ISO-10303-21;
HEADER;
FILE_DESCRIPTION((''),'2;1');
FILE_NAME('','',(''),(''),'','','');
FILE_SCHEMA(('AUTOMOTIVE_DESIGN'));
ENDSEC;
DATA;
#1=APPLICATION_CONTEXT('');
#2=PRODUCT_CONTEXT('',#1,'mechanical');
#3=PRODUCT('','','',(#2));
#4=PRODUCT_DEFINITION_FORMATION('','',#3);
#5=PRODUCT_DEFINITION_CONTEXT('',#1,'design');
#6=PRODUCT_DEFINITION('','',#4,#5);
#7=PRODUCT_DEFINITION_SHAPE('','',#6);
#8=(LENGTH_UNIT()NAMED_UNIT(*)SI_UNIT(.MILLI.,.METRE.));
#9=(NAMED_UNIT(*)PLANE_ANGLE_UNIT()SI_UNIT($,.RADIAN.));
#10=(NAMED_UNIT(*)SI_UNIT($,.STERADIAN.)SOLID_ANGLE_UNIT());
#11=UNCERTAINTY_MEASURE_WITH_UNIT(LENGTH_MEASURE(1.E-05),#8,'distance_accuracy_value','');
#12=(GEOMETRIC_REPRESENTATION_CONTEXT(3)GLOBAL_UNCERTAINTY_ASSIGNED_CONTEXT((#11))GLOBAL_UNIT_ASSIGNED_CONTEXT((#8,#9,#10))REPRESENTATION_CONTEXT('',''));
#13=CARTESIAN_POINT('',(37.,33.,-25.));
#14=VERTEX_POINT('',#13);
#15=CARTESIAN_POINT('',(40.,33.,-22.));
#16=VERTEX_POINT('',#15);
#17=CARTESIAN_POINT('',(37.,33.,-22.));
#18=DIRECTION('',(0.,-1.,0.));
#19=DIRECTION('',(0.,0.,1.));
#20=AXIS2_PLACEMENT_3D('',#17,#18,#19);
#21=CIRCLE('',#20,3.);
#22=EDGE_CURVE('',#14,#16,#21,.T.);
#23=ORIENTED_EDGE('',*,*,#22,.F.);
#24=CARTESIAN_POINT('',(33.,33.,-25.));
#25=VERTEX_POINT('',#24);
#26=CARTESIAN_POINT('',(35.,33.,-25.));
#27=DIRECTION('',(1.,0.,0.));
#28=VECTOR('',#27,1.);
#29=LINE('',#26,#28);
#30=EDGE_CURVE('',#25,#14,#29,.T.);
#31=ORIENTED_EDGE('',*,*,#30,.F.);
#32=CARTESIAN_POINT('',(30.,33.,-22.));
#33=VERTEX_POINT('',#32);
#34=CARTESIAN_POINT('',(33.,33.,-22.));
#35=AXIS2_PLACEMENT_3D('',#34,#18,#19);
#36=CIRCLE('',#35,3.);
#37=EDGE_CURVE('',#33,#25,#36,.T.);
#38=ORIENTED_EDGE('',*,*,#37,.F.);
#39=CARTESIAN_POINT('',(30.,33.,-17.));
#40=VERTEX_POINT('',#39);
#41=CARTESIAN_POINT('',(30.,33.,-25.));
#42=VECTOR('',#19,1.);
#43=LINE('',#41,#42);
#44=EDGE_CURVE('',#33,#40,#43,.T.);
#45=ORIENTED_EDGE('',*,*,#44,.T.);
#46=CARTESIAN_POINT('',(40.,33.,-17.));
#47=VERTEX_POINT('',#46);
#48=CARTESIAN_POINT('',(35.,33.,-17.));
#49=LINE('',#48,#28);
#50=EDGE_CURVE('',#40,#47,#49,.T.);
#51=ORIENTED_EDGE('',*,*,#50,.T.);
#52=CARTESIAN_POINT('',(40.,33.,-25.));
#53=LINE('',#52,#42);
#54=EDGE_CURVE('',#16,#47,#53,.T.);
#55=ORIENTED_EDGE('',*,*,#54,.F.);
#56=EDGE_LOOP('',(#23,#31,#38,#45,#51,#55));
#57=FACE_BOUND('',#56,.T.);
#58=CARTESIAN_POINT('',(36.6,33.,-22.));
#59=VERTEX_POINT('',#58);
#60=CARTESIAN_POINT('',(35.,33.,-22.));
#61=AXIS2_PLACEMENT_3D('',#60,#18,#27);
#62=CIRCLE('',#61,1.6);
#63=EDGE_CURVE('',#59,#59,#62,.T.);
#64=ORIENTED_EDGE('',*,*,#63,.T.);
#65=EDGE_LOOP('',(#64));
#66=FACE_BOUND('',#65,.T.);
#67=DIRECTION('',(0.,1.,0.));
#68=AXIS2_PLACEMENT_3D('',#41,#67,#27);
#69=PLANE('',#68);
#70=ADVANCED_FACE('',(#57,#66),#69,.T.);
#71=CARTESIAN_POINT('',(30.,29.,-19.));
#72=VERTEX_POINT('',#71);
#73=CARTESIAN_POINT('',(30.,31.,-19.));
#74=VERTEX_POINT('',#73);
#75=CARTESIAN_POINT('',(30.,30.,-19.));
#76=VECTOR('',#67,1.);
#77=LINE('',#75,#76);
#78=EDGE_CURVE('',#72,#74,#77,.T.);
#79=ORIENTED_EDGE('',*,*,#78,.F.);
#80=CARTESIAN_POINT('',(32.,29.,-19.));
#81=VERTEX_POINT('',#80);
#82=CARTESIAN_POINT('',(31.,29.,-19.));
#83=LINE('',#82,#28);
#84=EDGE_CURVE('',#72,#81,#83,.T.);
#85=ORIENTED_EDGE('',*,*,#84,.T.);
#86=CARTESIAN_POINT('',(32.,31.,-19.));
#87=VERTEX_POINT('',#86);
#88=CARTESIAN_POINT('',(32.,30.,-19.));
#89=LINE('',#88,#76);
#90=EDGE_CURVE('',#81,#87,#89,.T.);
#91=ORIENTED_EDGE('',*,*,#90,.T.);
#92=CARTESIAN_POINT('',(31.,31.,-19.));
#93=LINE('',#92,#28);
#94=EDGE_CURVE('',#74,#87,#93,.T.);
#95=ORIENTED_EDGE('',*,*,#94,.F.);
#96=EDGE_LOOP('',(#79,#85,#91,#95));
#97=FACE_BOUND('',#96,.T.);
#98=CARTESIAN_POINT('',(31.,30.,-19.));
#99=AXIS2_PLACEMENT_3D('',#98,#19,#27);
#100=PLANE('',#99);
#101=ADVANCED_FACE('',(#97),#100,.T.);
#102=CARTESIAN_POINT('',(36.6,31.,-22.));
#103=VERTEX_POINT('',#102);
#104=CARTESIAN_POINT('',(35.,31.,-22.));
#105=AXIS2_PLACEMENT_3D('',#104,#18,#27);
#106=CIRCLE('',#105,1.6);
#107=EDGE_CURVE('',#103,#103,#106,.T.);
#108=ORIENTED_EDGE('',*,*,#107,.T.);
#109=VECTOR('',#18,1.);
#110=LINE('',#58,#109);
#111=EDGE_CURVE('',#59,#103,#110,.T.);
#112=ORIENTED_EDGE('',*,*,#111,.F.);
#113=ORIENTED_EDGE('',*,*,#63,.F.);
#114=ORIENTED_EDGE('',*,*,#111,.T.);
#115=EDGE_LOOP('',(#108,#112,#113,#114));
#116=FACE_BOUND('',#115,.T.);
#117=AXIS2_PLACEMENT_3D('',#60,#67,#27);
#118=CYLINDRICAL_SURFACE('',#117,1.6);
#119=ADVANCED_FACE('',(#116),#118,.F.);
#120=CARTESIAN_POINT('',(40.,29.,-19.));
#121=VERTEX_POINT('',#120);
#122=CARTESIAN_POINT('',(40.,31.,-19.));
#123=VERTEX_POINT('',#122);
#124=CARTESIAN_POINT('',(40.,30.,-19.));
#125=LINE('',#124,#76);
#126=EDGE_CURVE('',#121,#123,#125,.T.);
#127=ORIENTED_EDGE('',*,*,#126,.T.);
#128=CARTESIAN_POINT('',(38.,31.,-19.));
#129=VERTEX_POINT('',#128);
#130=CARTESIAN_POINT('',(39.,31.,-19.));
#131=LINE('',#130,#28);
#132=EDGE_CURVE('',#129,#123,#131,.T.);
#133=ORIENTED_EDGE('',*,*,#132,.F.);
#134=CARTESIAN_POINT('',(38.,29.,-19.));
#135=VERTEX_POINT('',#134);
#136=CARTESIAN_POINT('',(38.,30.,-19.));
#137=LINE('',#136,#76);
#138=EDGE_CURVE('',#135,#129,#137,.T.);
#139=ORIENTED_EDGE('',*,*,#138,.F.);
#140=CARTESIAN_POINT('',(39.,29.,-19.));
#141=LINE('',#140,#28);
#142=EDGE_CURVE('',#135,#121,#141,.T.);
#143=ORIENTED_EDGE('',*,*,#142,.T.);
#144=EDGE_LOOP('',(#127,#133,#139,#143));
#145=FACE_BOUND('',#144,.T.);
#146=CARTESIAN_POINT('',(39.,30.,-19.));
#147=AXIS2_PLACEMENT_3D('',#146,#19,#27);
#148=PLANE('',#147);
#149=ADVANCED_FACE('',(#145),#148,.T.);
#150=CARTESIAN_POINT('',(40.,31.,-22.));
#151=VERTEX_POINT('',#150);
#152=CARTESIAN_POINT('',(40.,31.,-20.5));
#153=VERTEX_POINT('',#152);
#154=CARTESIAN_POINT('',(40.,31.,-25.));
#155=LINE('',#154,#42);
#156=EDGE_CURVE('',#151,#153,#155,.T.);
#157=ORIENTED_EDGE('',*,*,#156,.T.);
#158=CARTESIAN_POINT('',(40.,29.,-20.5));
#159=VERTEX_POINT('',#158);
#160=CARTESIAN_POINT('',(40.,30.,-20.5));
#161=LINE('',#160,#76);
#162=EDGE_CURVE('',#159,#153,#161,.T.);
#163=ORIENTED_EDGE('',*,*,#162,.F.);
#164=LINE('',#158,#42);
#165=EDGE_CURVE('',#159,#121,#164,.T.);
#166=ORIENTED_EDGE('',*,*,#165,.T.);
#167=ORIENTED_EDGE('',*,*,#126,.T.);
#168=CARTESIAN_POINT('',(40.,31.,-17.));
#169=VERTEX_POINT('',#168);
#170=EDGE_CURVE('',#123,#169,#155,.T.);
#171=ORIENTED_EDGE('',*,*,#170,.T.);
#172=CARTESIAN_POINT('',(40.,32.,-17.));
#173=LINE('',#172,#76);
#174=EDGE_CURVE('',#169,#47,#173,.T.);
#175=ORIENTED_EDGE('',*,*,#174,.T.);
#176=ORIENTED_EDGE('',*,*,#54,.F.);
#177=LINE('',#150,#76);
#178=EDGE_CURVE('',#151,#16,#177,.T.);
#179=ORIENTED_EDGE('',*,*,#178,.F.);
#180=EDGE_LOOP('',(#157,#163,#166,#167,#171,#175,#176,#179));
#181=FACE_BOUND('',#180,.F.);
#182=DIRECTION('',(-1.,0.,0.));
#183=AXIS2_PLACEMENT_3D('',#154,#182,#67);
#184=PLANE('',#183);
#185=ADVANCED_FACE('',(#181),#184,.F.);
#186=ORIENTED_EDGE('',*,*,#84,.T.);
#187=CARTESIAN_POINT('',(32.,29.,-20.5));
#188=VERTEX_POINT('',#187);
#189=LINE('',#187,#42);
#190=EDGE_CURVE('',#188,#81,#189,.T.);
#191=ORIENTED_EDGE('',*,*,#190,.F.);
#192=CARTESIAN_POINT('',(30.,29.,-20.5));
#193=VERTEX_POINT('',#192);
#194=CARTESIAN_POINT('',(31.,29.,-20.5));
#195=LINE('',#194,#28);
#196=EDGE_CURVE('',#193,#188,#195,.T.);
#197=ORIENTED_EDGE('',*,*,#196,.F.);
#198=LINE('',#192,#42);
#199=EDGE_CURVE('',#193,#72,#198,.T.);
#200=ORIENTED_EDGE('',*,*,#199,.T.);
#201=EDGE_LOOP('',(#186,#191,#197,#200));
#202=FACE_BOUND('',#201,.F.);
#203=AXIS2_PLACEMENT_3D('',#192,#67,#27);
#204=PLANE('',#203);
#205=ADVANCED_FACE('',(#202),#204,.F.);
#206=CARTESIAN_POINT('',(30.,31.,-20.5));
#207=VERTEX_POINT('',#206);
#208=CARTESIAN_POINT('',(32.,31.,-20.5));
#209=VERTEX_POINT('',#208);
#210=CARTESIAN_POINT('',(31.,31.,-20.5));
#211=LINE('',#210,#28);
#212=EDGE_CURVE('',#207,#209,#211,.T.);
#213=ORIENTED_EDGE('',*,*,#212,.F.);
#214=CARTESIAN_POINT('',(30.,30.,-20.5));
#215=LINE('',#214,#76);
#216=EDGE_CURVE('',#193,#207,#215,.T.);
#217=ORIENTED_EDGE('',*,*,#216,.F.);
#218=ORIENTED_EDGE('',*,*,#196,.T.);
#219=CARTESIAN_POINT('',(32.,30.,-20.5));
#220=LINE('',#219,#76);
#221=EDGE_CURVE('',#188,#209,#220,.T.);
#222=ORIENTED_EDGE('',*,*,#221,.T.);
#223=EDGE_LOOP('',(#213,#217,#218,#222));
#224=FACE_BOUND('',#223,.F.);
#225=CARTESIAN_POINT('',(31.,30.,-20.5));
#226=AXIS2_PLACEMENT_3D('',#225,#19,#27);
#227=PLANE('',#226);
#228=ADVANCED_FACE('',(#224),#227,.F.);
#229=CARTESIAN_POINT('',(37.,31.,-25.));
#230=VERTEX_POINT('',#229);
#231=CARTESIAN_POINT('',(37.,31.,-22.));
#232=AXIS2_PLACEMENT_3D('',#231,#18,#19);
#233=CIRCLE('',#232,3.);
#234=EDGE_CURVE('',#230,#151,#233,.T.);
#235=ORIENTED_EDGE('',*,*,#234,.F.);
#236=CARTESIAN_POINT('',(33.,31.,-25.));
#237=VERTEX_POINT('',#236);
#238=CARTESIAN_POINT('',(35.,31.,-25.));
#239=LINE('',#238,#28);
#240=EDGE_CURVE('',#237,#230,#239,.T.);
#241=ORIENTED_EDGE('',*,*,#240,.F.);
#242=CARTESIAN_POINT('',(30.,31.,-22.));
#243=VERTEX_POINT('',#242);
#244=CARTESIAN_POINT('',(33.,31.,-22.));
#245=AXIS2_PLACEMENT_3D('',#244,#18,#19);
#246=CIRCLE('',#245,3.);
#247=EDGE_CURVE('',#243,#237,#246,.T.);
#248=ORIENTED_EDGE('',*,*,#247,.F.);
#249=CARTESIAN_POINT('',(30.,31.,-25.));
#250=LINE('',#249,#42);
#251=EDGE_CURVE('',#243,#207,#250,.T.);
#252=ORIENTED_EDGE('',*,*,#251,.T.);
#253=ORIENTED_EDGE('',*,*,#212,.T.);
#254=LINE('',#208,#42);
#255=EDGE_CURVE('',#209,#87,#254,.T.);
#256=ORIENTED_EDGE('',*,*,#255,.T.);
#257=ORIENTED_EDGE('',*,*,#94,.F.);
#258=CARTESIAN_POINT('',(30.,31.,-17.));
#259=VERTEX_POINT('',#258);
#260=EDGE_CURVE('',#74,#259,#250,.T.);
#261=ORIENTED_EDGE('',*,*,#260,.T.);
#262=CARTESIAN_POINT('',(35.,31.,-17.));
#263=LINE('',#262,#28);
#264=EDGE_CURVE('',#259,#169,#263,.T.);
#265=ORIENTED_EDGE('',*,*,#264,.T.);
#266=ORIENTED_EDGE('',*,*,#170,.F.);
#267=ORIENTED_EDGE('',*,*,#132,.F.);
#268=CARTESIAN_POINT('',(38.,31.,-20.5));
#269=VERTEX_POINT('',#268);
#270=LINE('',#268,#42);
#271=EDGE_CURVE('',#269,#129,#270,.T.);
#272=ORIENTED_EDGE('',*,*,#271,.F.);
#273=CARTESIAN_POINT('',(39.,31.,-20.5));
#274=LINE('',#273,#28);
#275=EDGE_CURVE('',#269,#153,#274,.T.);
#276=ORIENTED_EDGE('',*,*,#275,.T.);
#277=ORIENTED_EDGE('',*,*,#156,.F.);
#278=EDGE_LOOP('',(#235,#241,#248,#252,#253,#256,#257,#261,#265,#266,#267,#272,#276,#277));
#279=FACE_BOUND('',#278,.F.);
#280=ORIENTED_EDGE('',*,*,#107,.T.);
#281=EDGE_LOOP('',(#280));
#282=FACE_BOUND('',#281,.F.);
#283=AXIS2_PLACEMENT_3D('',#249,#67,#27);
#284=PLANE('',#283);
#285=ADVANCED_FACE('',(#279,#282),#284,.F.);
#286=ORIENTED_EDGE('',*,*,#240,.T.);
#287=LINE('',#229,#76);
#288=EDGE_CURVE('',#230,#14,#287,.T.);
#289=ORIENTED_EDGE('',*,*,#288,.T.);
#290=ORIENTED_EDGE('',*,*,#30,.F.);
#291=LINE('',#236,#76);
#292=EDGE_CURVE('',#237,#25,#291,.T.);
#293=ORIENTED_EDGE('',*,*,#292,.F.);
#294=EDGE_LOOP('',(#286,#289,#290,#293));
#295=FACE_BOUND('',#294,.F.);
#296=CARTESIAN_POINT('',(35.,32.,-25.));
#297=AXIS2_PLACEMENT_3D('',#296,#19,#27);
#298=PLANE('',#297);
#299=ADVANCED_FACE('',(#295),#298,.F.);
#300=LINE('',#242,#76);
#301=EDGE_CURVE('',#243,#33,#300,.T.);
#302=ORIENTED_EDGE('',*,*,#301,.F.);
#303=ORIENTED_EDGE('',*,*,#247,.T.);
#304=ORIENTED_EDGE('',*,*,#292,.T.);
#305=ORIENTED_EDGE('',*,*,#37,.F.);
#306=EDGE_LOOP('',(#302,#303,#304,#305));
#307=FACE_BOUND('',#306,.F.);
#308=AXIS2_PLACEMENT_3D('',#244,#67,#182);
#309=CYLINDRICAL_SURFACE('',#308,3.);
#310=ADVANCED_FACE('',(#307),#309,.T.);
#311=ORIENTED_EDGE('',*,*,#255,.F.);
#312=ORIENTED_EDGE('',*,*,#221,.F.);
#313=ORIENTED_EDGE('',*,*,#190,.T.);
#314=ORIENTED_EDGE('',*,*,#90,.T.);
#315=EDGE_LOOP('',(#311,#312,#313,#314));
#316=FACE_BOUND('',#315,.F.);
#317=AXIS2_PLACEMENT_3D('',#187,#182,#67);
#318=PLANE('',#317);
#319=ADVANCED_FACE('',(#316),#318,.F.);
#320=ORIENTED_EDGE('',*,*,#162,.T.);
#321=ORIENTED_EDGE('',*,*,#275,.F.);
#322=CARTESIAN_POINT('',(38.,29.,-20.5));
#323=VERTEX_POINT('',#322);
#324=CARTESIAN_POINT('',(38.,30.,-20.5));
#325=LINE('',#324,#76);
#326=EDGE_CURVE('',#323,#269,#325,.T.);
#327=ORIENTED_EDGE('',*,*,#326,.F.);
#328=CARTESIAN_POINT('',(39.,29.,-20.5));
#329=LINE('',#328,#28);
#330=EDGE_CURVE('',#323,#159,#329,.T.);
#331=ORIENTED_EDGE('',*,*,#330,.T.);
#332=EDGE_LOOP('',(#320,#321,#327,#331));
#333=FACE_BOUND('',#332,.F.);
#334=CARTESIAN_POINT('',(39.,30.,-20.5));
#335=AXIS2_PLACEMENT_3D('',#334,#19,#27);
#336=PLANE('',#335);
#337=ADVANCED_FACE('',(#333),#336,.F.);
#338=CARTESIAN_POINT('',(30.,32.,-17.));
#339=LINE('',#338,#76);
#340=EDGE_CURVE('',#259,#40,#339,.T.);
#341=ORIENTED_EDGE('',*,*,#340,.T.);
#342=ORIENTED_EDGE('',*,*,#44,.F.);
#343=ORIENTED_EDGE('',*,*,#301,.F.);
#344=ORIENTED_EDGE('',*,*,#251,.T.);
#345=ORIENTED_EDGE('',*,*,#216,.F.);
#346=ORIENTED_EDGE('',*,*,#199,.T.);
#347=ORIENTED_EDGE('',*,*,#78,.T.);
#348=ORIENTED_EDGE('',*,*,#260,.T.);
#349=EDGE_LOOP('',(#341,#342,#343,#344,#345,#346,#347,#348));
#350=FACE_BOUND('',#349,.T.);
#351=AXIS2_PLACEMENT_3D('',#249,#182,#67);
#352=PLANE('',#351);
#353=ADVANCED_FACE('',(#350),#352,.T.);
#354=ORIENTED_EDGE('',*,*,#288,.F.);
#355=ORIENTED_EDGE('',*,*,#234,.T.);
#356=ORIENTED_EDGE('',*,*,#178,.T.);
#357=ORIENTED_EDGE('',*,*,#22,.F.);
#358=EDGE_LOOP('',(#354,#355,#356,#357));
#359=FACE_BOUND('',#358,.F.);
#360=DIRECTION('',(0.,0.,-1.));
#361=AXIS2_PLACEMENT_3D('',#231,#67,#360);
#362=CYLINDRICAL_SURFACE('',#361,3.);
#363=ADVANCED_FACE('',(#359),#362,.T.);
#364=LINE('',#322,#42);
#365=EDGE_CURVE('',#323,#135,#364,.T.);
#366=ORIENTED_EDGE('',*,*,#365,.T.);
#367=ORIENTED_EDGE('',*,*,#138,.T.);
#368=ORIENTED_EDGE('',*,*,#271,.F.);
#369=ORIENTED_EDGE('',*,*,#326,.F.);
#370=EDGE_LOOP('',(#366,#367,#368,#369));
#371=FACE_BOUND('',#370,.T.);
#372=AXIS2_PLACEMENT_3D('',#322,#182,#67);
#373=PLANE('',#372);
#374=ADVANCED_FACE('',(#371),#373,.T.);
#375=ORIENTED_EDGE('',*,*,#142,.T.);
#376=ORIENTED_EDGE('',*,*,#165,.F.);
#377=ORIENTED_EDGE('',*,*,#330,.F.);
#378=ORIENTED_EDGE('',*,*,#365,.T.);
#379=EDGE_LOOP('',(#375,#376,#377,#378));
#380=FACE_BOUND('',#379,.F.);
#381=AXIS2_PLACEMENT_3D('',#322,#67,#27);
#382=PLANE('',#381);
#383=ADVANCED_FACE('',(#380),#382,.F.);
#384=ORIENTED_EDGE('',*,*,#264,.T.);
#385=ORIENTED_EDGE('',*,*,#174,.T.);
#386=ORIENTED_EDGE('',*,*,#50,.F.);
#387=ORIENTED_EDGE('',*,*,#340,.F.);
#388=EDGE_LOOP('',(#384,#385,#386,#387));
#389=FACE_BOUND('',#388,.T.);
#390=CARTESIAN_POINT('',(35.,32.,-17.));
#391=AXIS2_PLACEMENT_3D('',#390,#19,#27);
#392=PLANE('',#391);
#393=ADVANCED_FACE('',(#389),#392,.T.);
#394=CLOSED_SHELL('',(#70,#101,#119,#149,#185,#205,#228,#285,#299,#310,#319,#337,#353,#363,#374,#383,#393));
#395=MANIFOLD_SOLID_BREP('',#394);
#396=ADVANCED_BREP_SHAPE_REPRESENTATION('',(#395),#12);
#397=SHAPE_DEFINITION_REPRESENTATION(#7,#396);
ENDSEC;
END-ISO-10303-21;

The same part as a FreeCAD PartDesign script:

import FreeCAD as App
import Part
import Sketcher
Q = App.Units.Quantity


def edges_at(feature, points):
    """Names of the edges that pass closest to the given points."""
    edges = feature.Shape.Edges
    near = lambda p: min(range(len(edges)), key=lambda i: edges[i].distToShape(Part.Vertex(*p))[0])
    return sorted({f"Edge{near(p) + 1}" for p in points})

doc = App.newDocument("Part")
body = doc.addObject("PartDesign::Body", "Body")

sketch1 = doc.addObject("Sketcher::SketchObject", "Sketch")
body.addObject(sketch1)
sketch1.AttachmentSupport = (doc.XZ_Plane, [""])
sketch1.MapMode = "FlatFace"
sketch1.AttachmentOffset = App.Placement(App.Vector(0, 0, -33), App.Rotation())
sketch1.addGeometry(Part.Circle(App.Vector(35, -22, 0), App.Vector(0, 0, 1), 1.6), False)
sketch1.addConstraint([
    Sketcher.Constraint("Diameter", 0, Q("3.2 mm")),
    Sketcher.Constraint("DistanceX", -1, 1, 0, 3, Q("35 mm")),
    Sketcher.Constraint("DistanceY", 0, 3, -1, 1, Q("22 mm")),
])
pad1 = doc.addObject("PartDesign::Pad", "Pad")
body.addObject(pad1)
pad1.Profile = sketch1
pad1.Length = 2
body2 = doc.addObject("PartDesign::Body", "Body001")

sketch2 = doc.addObject("Sketcher::SketchObject", "Sketch001")
body2.addObject(sketch2)
sketch2.AttachmentSupport = (doc.getObject("XY_Plane001"), [""])
sketch2.MapMode = "FlatFace"
sketch2.AttachmentOffset = App.Placement(App.Vector(0, 0, -25), App.Rotation())
sketch2.addGeometry([
    Part.LineSegment(App.Vector(30, 33, 0), App.Vector(30, 31, 0)),
    Part.LineSegment(App.Vector(30, 31, 0), App.Vector(40, 31, 0)),
    Part.LineSegment(App.Vector(40, 31, 0), App.Vector(40, 33, 0)),
    Part.LineSegment(App.Vector(40, 33, 0), App.Vector(30, 33, 0)),
], False)
sketch2.addConstraint([
    Sketcher.Constraint("Coincident", 0, 2, 1, 1),
    Sketcher.Constraint("Coincident", 1, 2, 2, 1),
    Sketcher.Constraint("Coincident", 2, 2, 3, 1),
    Sketcher.Constraint("Coincident", 3, 2, 0, 1),
    Sketcher.Constraint("Vertical", 0),
    Sketcher.Constraint("Horizontal", 1),
    Sketcher.Constraint("Vertical", 2),
    Sketcher.Constraint("Horizontal", 3),
    Sketcher.Constraint("DistanceX", 1, 1, 1, 2, Q("10 mm")),
    Sketcher.Constraint("DistanceY", 0, 2, 0, 1, Q("2 mm")),
    Sketcher.Constraint("DistanceX", -1, 1, 0, 2, Q("30 mm")),
    Sketcher.Constraint("DistanceY", -1, 1, 0, 2, Q("31 mm")),
])
pad2 = doc.addObject("PartDesign::Pad", "Pad001")
body2.addObject(pad2)
pad2.Profile = sketch2
pad2.Length = 8
doc.recompute()

boolean = doc.addObject("PartDesign::Boolean", "Boolean")
body2.addObject(boolean)
boolean.Type = "Cut"
boolean.addObjects([body])
doc.recompute()

fillet = doc.addObject("PartDesign::Fillet", "Fillet")
body2.addObject(fillet)
fillet.Base = (boolean, edges_at(boolean, [(30, 32, -25), (40, 32, -25)]))
fillet.Radius = 3
body3 = doc.addObject("PartDesign::Body", "Body002")

sketch3 = doc.addObject("Sketcher::SketchObject", "Sketch002")
body3.addObject(sketch3)
sketch3.AttachmentSupport = (doc.getObject("XY_Plane002"), [""])
sketch3.MapMode = "FlatFace"
sketch3.AttachmentOffset = App.Placement(App.Vector(0, 0, -20.5), App.Rotation())
sketch3.addGeometry([
    Part.LineSegment(App.Vector(30, 31, 0), App.Vector(30, 29, 0)),
    Part.LineSegment(App.Vector(30, 29, 0), App.Vector(32, 29, 0)),
    Part.LineSegment(App.Vector(32, 29, 0), App.Vector(32, 31, 0)),
    Part.LineSegment(App.Vector(32, 31, 0), App.Vector(30, 31, 0)),
], False)
sketch3.addConstraint([
    Sketcher.Constraint("Coincident", 0, 2, 1, 1),
    Sketcher.Constraint("Coincident", 1, 2, 2, 1),
    Sketcher.Constraint("Coincident", 2, 2, 3, 1),
    Sketcher.Constraint("Coincident", 3, 2, 0, 1),
    Sketcher.Constraint("Vertical", 0),
    Sketcher.Constraint("Horizontal", 1),
    Sketcher.Constraint("Vertical", 2),
    Sketcher.Constraint("Horizontal", 3),
    Sketcher.Constraint("Equal", 3, 0),
    Sketcher.Constraint("DistanceX", 1, 1, 1, 2, Q("2 mm")),
    Sketcher.Constraint("DistanceX", -1, 1, 0, 2, Q("30 mm")),
    Sketcher.Constraint("DistanceY", -1, 1, 0, 2, Q("29 mm")),
])
pad3 = doc.addObject("PartDesign::Pad", "Pad002")
body3.addObject(pad3)
pad3.Profile = sketch3
pad3.Length = 1.5
body4 = doc.addObject("PartDesign::Body", "Body003")

sketch4 = doc.addObject("Sketcher::SketchObject", "Sketch003")
body4.addObject(sketch4)
sketch4.AttachmentSupport = (doc.getObject("XY_Plane003"), [""])
sketch4.MapMode = "FlatFace"
sketch4.AttachmentOffset = App.Placement(App.Vector(0, 0, -20.5), App.Rotation())
sketch4.addGeometry([
    Part.LineSegment(App.Vector(38, 31, 0), App.Vector(38, 29, 0)),
    Part.LineSegment(App.Vector(38, 29, 0), App.Vector(40, 29, 0)),
    Part.LineSegment(App.Vector(40, 29, 0), App.Vector(40, 31, 0)),
    Part.LineSegment(App.Vector(40, 31, 0), App.Vector(38, 31, 0)),
], False)
sketch4.addConstraint([
    Sketcher.Constraint("Coincident", 0, 2, 1, 1),
    Sketcher.Constraint("Coincident", 1, 2, 2, 1),
    Sketcher.Constraint("Coincident", 2, 2, 3, 1),
    Sketcher.Constraint("Coincident", 3, 2, 0, 1),
    Sketcher.Constraint("Vertical", 0),
    Sketcher.Constraint("Horizontal", 1),
    Sketcher.Constraint("Vertical", 2),
    Sketcher.Constraint("Horizontal", 3),
    Sketcher.Constraint("Equal", 3, 0),
    Sketcher.Constraint("DistanceX", 1, 1, 1, 2, Q("2 mm")),
    Sketcher.Constraint("DistanceX", -1, 1, 0, 2, Q("38 mm")),
    Sketcher.Constraint("DistanceY", -1, 1, 0, 2, Q("29 mm")),
])
pad4 = doc.addObject("PartDesign::Pad", "Pad003")
body4.addObject(pad4)
pad4.Profile = sketch4
pad4.Length = 1.5
doc.recompute()

boolean2 = doc.addObject("PartDesign::Boolean", "Boolean001")
body4.addObject(boolean2)
boolean2.Type = "Fuse"
boolean2.addObjects([body2])
doc.recompute()

boolean3 = doc.addObject("PartDesign::Boolean", "Boolean002")
body4.addObject(boolean3)
boolean3.Type = "Fuse"
boolean3.addObjects([body3])

doc.recompute()
